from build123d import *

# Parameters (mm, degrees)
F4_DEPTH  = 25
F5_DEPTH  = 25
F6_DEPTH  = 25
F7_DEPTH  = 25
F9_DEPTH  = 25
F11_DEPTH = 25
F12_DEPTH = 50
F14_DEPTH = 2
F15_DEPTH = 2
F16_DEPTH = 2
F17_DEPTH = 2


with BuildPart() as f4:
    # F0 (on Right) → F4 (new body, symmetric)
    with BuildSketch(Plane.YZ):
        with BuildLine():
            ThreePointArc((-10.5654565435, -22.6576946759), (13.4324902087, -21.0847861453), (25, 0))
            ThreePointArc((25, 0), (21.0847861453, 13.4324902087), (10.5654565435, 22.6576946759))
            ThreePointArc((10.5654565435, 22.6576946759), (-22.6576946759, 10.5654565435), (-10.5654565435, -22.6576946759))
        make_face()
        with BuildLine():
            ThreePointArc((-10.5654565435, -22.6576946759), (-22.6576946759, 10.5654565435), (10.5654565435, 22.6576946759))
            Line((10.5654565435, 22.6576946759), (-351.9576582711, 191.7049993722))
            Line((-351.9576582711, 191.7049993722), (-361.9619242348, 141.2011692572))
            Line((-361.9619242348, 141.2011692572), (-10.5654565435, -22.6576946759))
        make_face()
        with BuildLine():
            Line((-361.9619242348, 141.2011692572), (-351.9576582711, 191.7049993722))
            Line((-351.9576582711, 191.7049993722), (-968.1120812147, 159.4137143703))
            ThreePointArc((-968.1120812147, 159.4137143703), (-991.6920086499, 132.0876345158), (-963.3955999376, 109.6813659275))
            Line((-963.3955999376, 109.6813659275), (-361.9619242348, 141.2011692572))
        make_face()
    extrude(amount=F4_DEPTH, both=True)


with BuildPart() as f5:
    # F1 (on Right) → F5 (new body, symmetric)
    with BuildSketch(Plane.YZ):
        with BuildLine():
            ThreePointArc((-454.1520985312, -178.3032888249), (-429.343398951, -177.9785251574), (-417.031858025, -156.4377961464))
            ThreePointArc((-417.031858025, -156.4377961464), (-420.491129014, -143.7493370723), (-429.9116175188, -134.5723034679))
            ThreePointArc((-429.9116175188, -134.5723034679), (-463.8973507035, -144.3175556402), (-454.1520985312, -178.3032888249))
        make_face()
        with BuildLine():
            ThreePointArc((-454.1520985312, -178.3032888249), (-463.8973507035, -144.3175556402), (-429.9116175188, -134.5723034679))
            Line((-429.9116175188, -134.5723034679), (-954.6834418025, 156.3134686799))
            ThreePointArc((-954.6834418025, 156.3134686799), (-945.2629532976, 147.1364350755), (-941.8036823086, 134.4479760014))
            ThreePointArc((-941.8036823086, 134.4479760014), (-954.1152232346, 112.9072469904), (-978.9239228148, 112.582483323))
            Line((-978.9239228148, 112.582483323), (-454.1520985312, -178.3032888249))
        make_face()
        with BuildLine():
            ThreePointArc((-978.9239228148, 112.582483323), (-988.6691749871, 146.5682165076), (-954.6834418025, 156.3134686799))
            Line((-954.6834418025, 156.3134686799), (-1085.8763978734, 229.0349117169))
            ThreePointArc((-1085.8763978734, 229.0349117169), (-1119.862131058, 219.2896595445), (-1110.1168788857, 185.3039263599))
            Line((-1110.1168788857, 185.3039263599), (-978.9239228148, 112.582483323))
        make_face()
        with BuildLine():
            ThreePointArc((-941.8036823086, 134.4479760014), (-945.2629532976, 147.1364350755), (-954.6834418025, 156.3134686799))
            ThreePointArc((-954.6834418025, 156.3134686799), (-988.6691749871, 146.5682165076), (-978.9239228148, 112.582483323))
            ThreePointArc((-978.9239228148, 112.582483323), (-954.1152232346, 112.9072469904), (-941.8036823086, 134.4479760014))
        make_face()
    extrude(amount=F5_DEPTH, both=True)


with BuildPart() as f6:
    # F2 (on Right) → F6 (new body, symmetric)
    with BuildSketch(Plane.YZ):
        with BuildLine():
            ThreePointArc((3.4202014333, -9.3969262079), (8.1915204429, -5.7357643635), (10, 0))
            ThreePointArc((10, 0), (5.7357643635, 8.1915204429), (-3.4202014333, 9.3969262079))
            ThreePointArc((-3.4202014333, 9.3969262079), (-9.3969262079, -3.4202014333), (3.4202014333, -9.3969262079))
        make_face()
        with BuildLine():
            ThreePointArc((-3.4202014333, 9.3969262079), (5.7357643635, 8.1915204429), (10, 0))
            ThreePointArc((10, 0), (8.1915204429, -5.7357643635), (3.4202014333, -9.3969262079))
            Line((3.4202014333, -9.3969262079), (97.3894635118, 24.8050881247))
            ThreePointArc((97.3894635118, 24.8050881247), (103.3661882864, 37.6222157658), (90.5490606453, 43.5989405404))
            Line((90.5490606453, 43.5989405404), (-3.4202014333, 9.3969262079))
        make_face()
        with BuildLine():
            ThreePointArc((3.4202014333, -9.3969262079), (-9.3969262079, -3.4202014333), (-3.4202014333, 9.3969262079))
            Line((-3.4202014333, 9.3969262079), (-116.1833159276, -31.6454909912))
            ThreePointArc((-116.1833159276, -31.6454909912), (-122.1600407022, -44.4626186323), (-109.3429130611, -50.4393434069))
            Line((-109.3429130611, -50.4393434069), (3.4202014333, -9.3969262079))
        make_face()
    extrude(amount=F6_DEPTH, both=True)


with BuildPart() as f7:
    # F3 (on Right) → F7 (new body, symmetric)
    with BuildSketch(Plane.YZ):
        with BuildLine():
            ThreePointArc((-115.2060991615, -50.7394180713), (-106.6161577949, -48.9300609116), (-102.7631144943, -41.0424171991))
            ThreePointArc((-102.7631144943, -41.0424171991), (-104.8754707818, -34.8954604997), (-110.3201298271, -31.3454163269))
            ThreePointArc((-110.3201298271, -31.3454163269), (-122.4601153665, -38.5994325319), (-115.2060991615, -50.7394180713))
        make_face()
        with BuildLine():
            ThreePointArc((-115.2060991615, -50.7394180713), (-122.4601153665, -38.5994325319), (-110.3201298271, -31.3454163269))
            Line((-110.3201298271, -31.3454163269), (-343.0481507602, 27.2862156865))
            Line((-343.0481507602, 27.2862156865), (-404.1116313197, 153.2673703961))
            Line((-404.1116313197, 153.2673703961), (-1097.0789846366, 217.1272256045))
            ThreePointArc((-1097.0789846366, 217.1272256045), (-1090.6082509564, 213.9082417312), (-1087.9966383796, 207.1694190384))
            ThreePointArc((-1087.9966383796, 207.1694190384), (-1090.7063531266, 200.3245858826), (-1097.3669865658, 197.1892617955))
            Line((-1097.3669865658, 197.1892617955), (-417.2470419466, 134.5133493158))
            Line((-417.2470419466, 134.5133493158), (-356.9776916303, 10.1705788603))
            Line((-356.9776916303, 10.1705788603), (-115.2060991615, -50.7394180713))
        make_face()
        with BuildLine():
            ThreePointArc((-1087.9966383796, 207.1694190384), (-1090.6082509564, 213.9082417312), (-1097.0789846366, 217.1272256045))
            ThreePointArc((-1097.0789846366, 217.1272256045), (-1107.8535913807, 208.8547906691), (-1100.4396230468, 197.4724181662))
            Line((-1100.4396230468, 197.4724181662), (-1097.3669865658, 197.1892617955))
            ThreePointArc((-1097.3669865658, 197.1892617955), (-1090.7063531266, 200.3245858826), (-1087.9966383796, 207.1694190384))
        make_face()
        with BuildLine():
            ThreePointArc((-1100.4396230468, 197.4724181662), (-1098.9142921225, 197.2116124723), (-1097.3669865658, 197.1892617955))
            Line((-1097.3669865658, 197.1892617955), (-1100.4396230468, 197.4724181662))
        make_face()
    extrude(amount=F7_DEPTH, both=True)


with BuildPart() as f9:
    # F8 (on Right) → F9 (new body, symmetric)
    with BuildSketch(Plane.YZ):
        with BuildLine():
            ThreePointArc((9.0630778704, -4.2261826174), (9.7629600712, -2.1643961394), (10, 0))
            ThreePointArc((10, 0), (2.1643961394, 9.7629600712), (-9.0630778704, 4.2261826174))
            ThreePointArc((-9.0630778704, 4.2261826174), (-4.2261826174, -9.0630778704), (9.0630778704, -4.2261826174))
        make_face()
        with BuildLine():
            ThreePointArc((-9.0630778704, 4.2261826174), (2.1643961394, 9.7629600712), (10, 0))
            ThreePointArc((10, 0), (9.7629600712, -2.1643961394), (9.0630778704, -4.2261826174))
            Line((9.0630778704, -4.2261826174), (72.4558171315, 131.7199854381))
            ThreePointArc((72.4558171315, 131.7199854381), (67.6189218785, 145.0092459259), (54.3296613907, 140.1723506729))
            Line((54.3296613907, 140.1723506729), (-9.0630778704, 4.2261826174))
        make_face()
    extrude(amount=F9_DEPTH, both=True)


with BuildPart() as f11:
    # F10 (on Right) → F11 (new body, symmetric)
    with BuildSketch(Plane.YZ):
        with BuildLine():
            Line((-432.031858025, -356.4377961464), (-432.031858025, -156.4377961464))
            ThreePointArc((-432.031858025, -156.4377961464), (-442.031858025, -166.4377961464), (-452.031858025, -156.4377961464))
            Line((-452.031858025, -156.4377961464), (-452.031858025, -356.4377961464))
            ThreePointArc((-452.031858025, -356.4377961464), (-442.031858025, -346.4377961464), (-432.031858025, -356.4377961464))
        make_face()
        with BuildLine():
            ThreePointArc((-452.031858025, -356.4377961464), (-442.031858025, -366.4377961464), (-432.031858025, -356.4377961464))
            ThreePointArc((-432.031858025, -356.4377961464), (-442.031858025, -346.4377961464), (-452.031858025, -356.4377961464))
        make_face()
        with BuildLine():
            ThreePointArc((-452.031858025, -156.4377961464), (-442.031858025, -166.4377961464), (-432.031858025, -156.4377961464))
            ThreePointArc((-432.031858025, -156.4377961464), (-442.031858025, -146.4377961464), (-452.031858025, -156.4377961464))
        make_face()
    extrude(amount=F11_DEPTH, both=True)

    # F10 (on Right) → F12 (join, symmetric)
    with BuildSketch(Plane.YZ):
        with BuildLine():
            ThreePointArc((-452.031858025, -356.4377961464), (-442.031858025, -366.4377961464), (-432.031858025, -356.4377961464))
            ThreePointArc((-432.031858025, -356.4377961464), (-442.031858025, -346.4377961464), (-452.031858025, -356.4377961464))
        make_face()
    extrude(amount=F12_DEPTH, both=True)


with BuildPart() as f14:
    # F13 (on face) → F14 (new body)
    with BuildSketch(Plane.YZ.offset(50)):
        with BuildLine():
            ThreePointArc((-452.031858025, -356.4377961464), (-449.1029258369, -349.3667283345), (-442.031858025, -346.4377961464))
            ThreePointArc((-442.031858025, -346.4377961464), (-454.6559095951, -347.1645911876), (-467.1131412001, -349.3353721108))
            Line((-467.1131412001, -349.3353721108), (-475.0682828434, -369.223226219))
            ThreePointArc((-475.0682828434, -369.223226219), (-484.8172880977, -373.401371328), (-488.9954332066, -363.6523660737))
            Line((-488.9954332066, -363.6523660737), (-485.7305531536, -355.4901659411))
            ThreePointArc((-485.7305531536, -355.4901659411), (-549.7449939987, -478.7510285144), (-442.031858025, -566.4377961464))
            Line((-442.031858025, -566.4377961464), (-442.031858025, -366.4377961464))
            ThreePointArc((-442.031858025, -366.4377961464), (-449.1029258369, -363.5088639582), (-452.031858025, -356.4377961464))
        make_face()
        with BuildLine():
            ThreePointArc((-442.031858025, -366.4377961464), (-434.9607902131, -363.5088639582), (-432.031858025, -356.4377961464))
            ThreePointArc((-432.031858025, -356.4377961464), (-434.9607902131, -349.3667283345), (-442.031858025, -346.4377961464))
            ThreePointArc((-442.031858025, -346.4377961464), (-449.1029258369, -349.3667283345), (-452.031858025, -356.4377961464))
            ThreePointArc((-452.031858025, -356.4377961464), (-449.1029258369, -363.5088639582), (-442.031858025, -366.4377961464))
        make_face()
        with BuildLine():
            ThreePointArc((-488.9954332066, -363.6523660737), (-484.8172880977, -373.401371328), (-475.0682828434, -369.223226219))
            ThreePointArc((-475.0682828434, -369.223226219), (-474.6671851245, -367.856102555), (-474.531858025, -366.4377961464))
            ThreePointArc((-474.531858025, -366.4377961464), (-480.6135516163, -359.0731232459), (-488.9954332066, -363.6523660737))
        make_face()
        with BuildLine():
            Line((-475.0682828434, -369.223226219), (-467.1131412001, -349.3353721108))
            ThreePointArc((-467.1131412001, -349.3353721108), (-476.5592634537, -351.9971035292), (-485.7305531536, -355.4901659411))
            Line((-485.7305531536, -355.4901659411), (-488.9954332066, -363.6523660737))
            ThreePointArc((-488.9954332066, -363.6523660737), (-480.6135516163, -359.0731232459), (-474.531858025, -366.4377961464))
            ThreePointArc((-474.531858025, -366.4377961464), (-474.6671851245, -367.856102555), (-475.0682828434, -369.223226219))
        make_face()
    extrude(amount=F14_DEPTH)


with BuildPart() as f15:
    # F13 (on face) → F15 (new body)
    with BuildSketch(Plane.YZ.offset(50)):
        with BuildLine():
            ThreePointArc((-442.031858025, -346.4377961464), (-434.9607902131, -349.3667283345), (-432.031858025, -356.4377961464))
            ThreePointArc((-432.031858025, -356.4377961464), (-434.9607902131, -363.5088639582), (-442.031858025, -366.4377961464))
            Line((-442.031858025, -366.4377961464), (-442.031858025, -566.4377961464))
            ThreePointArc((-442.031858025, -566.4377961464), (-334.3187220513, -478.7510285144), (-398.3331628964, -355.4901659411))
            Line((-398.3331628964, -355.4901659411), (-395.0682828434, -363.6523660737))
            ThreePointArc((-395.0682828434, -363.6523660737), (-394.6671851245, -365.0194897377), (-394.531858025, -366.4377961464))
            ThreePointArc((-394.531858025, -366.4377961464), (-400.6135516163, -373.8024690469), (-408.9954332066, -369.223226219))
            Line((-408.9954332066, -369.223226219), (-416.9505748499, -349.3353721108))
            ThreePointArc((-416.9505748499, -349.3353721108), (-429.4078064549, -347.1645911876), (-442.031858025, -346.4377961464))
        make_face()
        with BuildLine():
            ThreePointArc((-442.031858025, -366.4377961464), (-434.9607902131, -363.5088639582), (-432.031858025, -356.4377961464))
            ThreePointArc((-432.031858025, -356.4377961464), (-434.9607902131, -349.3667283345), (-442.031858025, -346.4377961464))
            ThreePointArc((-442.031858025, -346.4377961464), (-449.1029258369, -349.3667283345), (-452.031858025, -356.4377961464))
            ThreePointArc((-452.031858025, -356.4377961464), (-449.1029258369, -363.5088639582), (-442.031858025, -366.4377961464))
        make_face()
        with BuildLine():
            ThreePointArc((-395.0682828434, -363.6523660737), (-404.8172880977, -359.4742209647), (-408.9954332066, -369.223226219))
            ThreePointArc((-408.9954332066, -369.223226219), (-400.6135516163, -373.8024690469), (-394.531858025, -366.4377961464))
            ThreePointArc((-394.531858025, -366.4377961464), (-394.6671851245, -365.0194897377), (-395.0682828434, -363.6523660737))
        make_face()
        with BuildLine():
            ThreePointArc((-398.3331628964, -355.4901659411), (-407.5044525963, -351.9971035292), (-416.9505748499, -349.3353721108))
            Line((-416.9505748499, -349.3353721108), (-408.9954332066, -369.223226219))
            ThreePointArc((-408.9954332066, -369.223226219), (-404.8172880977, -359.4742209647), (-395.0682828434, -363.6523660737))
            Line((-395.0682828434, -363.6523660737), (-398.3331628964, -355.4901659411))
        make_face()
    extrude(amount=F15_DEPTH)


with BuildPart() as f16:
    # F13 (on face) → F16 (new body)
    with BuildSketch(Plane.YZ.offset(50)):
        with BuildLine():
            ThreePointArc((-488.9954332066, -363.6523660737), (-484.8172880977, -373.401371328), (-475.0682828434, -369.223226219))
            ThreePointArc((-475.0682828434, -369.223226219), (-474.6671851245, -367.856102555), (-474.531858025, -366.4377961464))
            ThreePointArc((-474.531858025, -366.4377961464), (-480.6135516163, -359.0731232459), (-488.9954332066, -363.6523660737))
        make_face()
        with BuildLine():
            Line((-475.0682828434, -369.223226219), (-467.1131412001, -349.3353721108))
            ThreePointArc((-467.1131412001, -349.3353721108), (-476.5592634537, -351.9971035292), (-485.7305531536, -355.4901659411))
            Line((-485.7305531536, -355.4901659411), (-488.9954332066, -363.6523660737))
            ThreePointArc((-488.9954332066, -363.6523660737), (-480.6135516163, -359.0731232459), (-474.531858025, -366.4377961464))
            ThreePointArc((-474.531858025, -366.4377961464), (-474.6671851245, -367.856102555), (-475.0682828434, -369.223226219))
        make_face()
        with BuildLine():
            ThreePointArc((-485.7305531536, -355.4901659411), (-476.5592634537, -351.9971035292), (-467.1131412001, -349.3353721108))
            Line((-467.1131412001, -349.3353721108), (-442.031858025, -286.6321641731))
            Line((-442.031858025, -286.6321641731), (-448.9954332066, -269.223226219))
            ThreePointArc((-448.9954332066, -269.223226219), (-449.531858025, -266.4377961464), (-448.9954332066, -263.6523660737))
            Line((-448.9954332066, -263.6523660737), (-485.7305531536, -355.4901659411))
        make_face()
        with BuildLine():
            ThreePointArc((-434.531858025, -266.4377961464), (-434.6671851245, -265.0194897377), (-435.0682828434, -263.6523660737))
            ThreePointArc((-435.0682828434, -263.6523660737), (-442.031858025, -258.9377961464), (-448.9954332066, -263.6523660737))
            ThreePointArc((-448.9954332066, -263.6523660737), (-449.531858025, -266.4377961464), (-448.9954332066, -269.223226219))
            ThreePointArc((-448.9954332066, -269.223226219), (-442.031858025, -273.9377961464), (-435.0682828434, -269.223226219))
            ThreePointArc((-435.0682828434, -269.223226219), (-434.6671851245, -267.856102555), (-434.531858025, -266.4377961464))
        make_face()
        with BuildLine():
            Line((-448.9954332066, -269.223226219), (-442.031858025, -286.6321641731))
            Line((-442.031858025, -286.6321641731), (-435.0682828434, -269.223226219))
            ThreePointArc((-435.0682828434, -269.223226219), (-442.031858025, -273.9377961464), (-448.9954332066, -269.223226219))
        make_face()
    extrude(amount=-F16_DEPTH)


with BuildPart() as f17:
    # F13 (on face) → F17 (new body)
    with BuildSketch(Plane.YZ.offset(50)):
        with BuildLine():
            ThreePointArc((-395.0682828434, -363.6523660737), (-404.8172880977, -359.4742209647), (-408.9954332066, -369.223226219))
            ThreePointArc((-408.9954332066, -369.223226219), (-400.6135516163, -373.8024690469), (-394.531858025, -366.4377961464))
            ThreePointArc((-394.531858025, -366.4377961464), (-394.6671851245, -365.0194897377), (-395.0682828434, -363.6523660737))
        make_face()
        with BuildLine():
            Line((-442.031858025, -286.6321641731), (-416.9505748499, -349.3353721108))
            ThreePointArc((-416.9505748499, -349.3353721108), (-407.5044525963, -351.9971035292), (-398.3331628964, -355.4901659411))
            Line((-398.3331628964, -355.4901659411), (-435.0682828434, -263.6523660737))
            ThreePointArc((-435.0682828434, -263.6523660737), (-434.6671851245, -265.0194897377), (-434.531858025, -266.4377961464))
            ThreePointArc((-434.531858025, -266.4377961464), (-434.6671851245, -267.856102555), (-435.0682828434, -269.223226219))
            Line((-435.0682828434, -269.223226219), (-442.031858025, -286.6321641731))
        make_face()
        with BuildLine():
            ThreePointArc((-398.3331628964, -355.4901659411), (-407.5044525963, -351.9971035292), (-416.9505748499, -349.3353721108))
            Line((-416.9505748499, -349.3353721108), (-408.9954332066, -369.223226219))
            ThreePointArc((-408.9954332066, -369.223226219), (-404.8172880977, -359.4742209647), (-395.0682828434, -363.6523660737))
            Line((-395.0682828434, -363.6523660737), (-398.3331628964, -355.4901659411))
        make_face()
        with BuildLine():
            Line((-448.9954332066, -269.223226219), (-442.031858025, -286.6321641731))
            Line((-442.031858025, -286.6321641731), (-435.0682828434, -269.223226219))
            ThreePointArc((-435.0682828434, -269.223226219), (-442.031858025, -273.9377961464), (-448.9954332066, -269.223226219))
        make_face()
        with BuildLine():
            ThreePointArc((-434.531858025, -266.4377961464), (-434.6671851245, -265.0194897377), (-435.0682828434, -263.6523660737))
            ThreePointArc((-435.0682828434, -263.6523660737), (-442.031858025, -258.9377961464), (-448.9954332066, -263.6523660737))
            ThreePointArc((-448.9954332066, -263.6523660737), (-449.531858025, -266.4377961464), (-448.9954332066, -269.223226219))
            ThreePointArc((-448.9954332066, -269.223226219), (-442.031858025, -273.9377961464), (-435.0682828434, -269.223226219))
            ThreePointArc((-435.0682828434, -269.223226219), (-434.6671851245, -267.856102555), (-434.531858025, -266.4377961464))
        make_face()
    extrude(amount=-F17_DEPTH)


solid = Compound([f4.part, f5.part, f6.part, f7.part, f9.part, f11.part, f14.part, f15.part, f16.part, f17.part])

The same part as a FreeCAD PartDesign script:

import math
import FreeCAD as App
import Part
import Sketcher
from FreeCAD import Vector
Q = App.Units.Quantity

doc = App.newDocument("Part")
body = doc.addObject("PartDesign::Body", "Body")

sketch1 = body.newObject("Sketcher::SketchObject", "Sketch")
sketch1.AttachmentSupport = (doc.getObject("YZ_Plane"), [""])
sketch1.MapMode = "FlatFace"
sketch1.addGeometry(Part.ArcOfCircle(Part.Circle(Vector(0, 0, 0), Vector(0, 0, 1), 25), math.radians(-115), math.radians(65)), False)
sketch1.addGeometry(Part.LineSegment(Vector(11, 23, 0), Vector(-352, 192, 0)), False)
sketch1.addGeometry(Part.LineSegment(Vector(-352, 192, 0), Vector(-968, 159, 0)), False)
sketch1.addGeometry(Part.ArcOfCircle(Part.Circle(Vector(-967, 134, 0), Vector(0, 0, 1), 25), math.radians(93), math.radians(278)), False)
sketch1.addGeometry(Part.LineSegment(Vector(-963, 110, 0), Vector(-362, 141, 0)), False)
sketch1.addGeometry(Part.LineSegment(Vector(-362, 141, 0), Vector(-11, -23, 0)), False)
sketch1.addConstraint(Sketcher.Constraint("Tangent", 0, 2, 1, 1))
sketch1.addConstraint(Sketcher.Constraint("Coincident", 1, 2, 2, 1))
sketch1.addConstraint(Sketcher.Constraint("Tangent", 2, 2, 3, 1))
sketch1.addConstraint(Sketcher.Constraint("Coincident", 3, 2, 4, 1))
sketch1.addConstraint(Sketcher.Constraint("Coincident", 4, 2, 5, 1))
sketch1.addConstraint(Sketcher.Constraint("Tangent", 5, 2, 0, 1))
sketch1.addConstraint(Sketcher.Constraint("Coincident", 0, 3, -1, 1))
sketch1.addConstraint(Sketcher.Constraint("Equal", 0, 3))
sketch1.addConstraint(Sketcher.Constraint("Parallel", 2, 4))
sketch1.addConstraint(Sketcher.Constraint("Parallel", 1, 5))
sketch1.addConstraint(Sketcher.Constraint("Radius", 0, 25.0))
sketch1.addConstraint(Sketcher.Constraint("Angle", 1, Q("155 deg")))
sketch1.addConstraint(Sketcher.Constraint("Angle", 2, Q("-177 deg")))
sketch1.addConstraint(Sketcher.Constraint("Distance", 1, 400.0))
sketch1.addConstraint(Sketcher.Constraint("Distance", 2, 617.0))
sketch1.addConstraint(Sketcher.Constraint("DistanceX", 3, 2, -1, 1, 963.3956))
pad1 = body.newObject("PartDesign::Pad", "Pad")
pad1.Profile = sketch1
pad1.Length = 50
pad1.Midplane = True
body2 = doc.addObject("PartDesign::Body", "Body001")

sketch2 = body2.newObject("Sketcher::SketchObject", "Sketch001")
sketch2.AttachmentSupport = (doc.getObject("YZ_Plane001"), [""])
sketch2.MapMode = "FlatFace"
sketch2.addGeometry(Part.ArcOfCircle(Part.Circle(Vector(-442, -156, 0), Vector(0, 0, 1), 25), math.radians(-119), math.radians(0)), False)
sketch2.addGeometry(Part.ArcOfCircle(Part.Circle(Vector(-442, -156, 0), Vector(0, 0, 1), 25), math.radians(0), math.radians(61)), False)
sketch2.addGeometry(Part.LineSegment(Vector(-430, -135, 0), Vector(-1086, 229, 0)), False)
sketch2.addGeometry(Part.ArcOfCircle(Part.Circle(Vector(-1098, 207, 0), Vector(0, 0, 1), 25), math.radians(61), math.radians(241)), False)
sketch2.addGeometry(Part.LineSegment(Vector(-1110, 185, 0), Vector(-454, -178, 0)), False)
sketch2.addConstraint(Sketcher.Constraint("Tangent", 0, 2, 1, 1))
sketch2.addConstraint(Sketcher.Constraint("Tangent", 1, 2, 2, 1))
sketch2.addConstraint(Sketcher.Constraint("Tangent", 2, 2, 3, 1))
sketch2.addConstraint(Sketcher.Constraint("Tangent", 3, 2, 4, 1))
sketch2.addConstraint(Sketcher.Constraint("Tangent", 4, 2, 0, 1))
sketch2.addConstraint(Sketcher.Constraint("Equal", 0, 1))
sketch2.addConstraint(Sketcher.Constraint("Equal", 1, 3))
sketch2.addConstraint(Sketcher.Constraint("Horizontal", 1, 3, 0, 2))
sketch2.addConstraint(Sketcher.Constraint("Radius", 0, 25.0))
sketch2.addConstraint(Sketcher.Constraint("Angle", 2, Q("151 deg")))
sketch2.addConstraint(Sketcher.Constraint("Distance", 2, 750.0))
sketch2.addConstraint(Sketcher.Constraint("DistanceX", 4, 2, -1, 1, 454.152099))
sketch2.addConstraint(Sketcher.Constraint("DistanceY", -1, 1, 3, 3, 207.169419))
pad2 = body2.newObject("PartDesign::Pad", "Pad001")
pad2.Profile = sketch2
pad2.Length = 50
pad2.Midplane = True
body3 = doc.addObject("PartDesign::Body", "Body002")

sketch3 = body3.newObject("Sketcher::SketchObject", "Sketch002")
sketch3.AttachmentSupport = (doc.getObject("YZ_Plane002"), [""])
sketch3.MapMode = "FlatFace"
sketch3.addGeometry(Part.LineSegment(Vector(3, -9, 0), Vector(97, 25, 0)), False)
sketch3.addGeometry(Part.ArcOfCircle(Part.Circle(Vector(94, 34, 0), Vector(0, 0, 1), 10), math.radians(-70), math.radians(110)), False)
sketch3.addGeometry(Part.LineSegment(Vector(91, 44, 0), Vector(-116, -32, 0)), False)
sketch3.addGeometry(Part.ArcOfCircle(Part.Circle(Vector(-113, -41, 0), Vector(0, 0, 1), 10), math.radians(110), math.radians(290)), False)
sketch3.addGeometry(Part.LineSegment(Vector(-109, -50, 0), Vector(3, -9, 0)), False)
sketch3.addConstraint(Sketcher.Constraint("Tangent", 0, 2, 1, 1))
sketch3.addConstraint(Sketcher.Constraint("Tangent", 1, 2, 2, 1))
sketch3.addConstraint(Sketcher.Constraint("Tangent", 2, 2, 3, 1))
sketch3.addConstraint(Sketcher.Constraint("Tangent", 3, 2, 4, 1))
sketch3.addConstraint(Sketcher.Constraint("Coincident", 4, 2, 0, 1))
sketch3.addConstraint(Sketcher.Constraint("Equal", 1, 3))
sketch3.addConstraint(Sketcher.Constraint("Parallel", 0, 2))
sketch3.addConstraint(Sketcher.Constraint("Radius", 1, 10.0))
sketch3.addConstraint(Sketcher.Constraint("Angle", 0, Q("20 deg")))
sketch3.addConstraint(Sketcher.Constraint("Distance", 0, 100.0))
sketch3.addConstraint(Sketcher.Constraint("Distance", 2, 220.0))
sketch3.addConstraint(Sketcher.Constraint("DistanceX", -1, 1, 4, 2, 3.420201))
sketch3.addConstraint(Sketcher.Constraint("DistanceY", -1, 1, 0, 2, 24.805088))
pad3 = body3.newObject("PartDesign::Pad", "Pad002")
pad3.Profile = sketch3
pad3.Length = 50
pad3.Midplane = True
body4 = doc.addObject("PartDesign::Body", "Body003")

sketch4 = body4.newObject("Sketcher::SketchObject", "Sketch003")
sketch4.AttachmentSupport = (doc.getObject("YZ_Plane003"), [""])
sketch4.MapMode = "FlatFace"
sketch4.addGeometry(Part.ArcOfCircle(Part.Circle(Vector(-112.8, -41, 0), Vector(0, 0, 1), 10), math.radians(-104), math.radians(0)), False)
sketch4.addGeometry(Part.ArcOfCircle(Part.Circle(Vector(-112.8, -41, 0), Vector(0, 0, 1), 10), math.radians(0), math.radians(76)), False)
sketch4.addGeometry(Part.LineSegment(Vector(-110.3, -31.3, 0), Vector(-343, 27.3, 0)), False)
sketch4.addGeometry(Part.LineSegment(Vector(-343, 27.3, 0), Vector(-404.1, 153.3, 0)), False)
sketch4.addGeometry(Part.LineSegment(Vector(-404.1, 153.3, 0), Vector(-1097.1, 217.1, 0)), False)
sketch4.addGeometry(Part.ArcOfCircle(Part.Circle(Vector(-1098, 207.2, 0), Vector(0, 0, 1), 10), math.radians(85), math.radians(256)), False)
sketch4.addGeometry(Part.ArcOfCircle(Part.Circle(Vector(-1098, 207.2, 0), Vector(0, 0, 1), 10), math.radians(-104.14), math.radians(-86.39)), False)
sketch4.addGeometry(Part.LineSegment(Vector(-1097.4, 197.2, 0), Vector(-417.2, 134.5, 0)), False)
sketch4.addGeometry(Part.LineSegment(Vector(-417.2, 134.5, 0), Vector(-357, 10.2, 0)), False)
sketch4.addGeometry(Part.LineSegment(Vector(-357, 10.2, 0), Vector(-115.2, -50.7, 0)), False)
sketch4.addConstraint(Sketcher.Constraint("Tangent", 0, 2, 1, 1))
sketch4.addConstraint(Sketcher.Constraint("Tangent", 1, 2, 2, 1))
sketch4.addConstraint(Sketcher.Constraint("Coincident", 2, 2, 3, 1))
sketch4.addConstraint(Sketcher.Constraint("Coincident", 3, 2, 4, 1))
sketch4.addConstraint(Sketcher.Constraint("Tangent", 4, 2, 5, 1))
sketch4.addConstraint(Sketcher.Constraint("Tangent", 5, 2, 6, 1))
sketch4.addConstraint(Sketcher.Constraint("Coincident", 6, 2, 7, 1))
sketch4.addConstraint(Sketcher.Constraint("Coincident", 7, 2, 8, 1))
sketch4.addConstraint(Sketcher.Constraint("Coincident", 8, 2, 9, 1))
sketch4.addConstraint(Sketcher.Constraint("Tangent", 9, 2, 0, 1))
sketch4.addConstraint(Sketcher.Constraint("Equal", 0, 1))
sketch4.addConstraint(Sketcher.Constraint("Equal", 1, 5))
sketch4.addConstraint(Sketcher.Constraint("Equal", 5, 6))
sketch4.addConstraint(Sketcher.Constraint("Parallel", 4, 7))
sketch4.addConstraint(Sketcher.Constraint("Parallel", 3, 8))
sketch4.addConstraint(Sketcher.Constraint("Parallel", 2, 9))
sketch4.addConstraint(Sketcher.Constraint("Horizontal", 1, 3, 0, 2))
sketch4.addConstraint(Sketcher.Constraint("Radius", 0, 10.0))
sketch4.addConstraint(Sketcher.Constraint("Distance", 2, 240.0))
sketch4.addConstraint(Sketcher.Constraint("Distance", 3, 140.0))
sketch4.addConstraint(Sketcher.Constraint("DistanceY", 0, 3, 1, 2, 9.697001))
sketch4.addConstraint(Sketcher.Constraint("DistanceY", 5, 2, 5, 3, 9.697001))
sketch4.addConstraint(Sketcher.Constraint("DistanceX", 6, 2, 4, 2, 0.288002))
sketch4.addConstraint(Sketcher.Constraint("Distance", 8, 138.179301))
sketch4.addConstraint(Sketcher.Constraint("DistanceX", 9, 2, -1, 1, 115.206099))
sketch4.addConstraint(Sketcher.Constraint("DistanceX", 3, 2, 1, 2, 293.791501))
sketch4.addConstraint(Sketcher.Constraint("Distance", 4, 695.90361))
sketch4.addConstraint(Sketcher.Constraint("DistanceX", 5, 3, -1, 1, 1097.996638))
sketch4.addConstraint(Sketcher.Constraint("DistanceY", -1, 1, 5, 3, 207.169419))
pad4 = body4.newObject("PartDesign::Pad", "Pad003")
pad4.Profile = sketch4
pad4.Length = 50
pad4.Midplane = True
body5 = doc.addObject("PartDesign::Body", "Body004")

sketch5 = body5.newObject("Sketcher::SketchObject", "Sketch004")
sketch5.AttachmentSupport = (doc.getObject("YZ_Plane004"), [""])
sketch5.MapMode = "FlatFace"
sketch5.addGeometry(Part.ArcOfCircle(Part.Circle(Vector(0, 0, 0), Vector(0, 0, 1), 10), math.radians(155), math.radians(335)), False)
sketch5.addGeometry(Part.LineSegment(Vector(9, -4, 0), Vector(72, 132, 0)), False)
sketch5.addGeometry(Part.ArcOfCircle(Part.Circle(Vector(63, 136, 0), Vector(0, 0, 1), 10), math.radians(-25), math.radians(155)), False)
sketch5.addGeometry(Part.LineSegment(Vector(54, 140, 0), Vector(-9, 4, 0)), False)
sketch5.addConstraint(Sketcher.Constraint("Tangent", 0, 2, 1, 1))
sketch5.addConstraint(Sketcher.Constraint("Tangent", 1, 2, 2, 1))
sketch5.addConstraint(Sketcher.Constraint("Tangent", 2, 2, 3, 1))
sketch5.addConstraint(Sketcher.Constraint("Tangent", 3, 2, 0, 1))
sketch5.addConstraint(Sketcher.Constraint("Coincident", 0, 3, -1, 1))
sketch5.addConstraint(Sketcher.Constraint("Equal", 0, 2))
sketch5.addConstraint(Sketcher.Constraint("Radius", 0, 10.0))
sketch5.addConstraint(Sketcher.Constraint("Angle", 1, Q("65 deg")))
sketch5.addConstraint(Sketcher.Constraint("Distance", 1, 150.0))
pad5 = body5.newObject("PartDesign::Pad", "Pad004")
pad5.Profile = sketch5
pad5.Length = 50
pad5.Midplane = True
body6 = doc.addObject("PartDesign::Body", "Body005")

sketch6 = body6.newObject("Sketcher::SketchObject", "Sketch005")
sketch6.AttachmentSupport = (doc.getObject("YZ_Plane005"), [""])
sketch6.MapMode = "FlatFace"
sketch6.addGeometry(Part.LineSegment(Vector(-432, -356, 0), Vector(-432, -156, 0)), False)
sketch6.addGeometry(Part.ArcOfCircle(Part.Circle(Vector(-442, -156, 0), Vector(0, 0, 1), 10), math.radians(0), math.radians(180)), False)
sketch6.addGeometry(Part.LineSegment(Vector(-452, -156, 0), Vector(-452, -356, 0)), False)
sketch6.addGeometry(Part.ArcOfCircle(Part.Circle(Vector(-442, -356, 0), Vector(0, 0, 1), 10), math.radians(180), math.radians(360)), False)
sketch6.addConstraint(Sketcher.Constraint("Tangent", 0, 2, 1, 1))
sketch6.addConstraint(Sketcher.Constraint("Tangent", 1, 2, 2, 1))
sketch6.addConstraint(Sketcher.Constraint("Tangent", 2, 2, 3, 1))
sketch6.addConstraint(Sketcher.Constraint("Tangent", 3, 2, 0, 1))
sketch6.addConstraint(Sketcher.Constraint("Vertical", 0))
sketch6.addConstraint(Sketcher.Constraint("Vertical", 2))
sketch6.addConstraint(Sketcher.Constraint("Radius", 1, 10.0))
sketch6.addConstraint(Sketcher.Constraint("DistanceY", 0, 1, 0, 2, 200.0))
sketch6.addConstraint(Sketcher.Constraint("DistanceX", 1, 3, -1, 1, 442.031858))
sketch6.addConstraint(Sketcher.Constraint("DistanceY", 1, 3, -1, 1, 156.437796))
pad6 = body6.newObject("PartDesign::Pad", "Pad005")
pad6.Profile = sketch6
pad6.Length = 50
pad6.Midplane = True

sketch7 = body6.newObject("Sketcher::SketchObject", "Sketch006")
sketch7.AttachmentSupport = (doc.getObject("YZ_Plane005"), [""])
sketch7.MapMode = "FlatFace"
sketch7.addGeometry(Part.Circle(Vector(-442, -356, 0), Vector(0, 0, 1), 10), False)
sketch7.addConstraint(Sketcher.Constraint("Diameter", 0, 20.0))
sketch7.addConstraint(Sketcher.Constraint("DistanceX", 0, 3, -1, 1, 442.031858))
sketch7.addConstraint(Sketcher.Constraint("DistanceY", 0, 3, -1, 1, 356.437796))
pad7 = body6.newObject("PartDesign::Pad", "Pad006")
pad7.Profile = sketch7
pad7.Length = 100
pad7.Midplane = True
body7 = doc.addObject("PartDesign::Body", "Body006")

sketch8 = body7.newObject("Sketcher::SketchObject", "Sketch007")
sketch8.AttachmentSupport = (doc.getObject("YZ_Plane006"), [""])
sketch8.MapMode = "FlatFace"
sketch8.AttachmentOffset = App.Placement(Vector(0, 0, 50), App.Rotation())
sketch8.addGeometry(Part.ArcOfCircle(Part.Circle(Vector(-442, -456, 0), Vector(0, 0, 1), 110), math.radians(90), math.radians(103.18)), False)
sketch8.addGeometry(Part.ArcOfCircle(Part.Circle(Vector(-442, -456, 0), Vector(0, 0, 1), 110), math.radians(103.18), math.radians(113.41)), False)
sketch8.addGeometry(Part.ArcOfCircle(Part.Circle(Vector(-442, -456, 0), Vector(0, 0, 1), 110), math.radians(113), math.radians(270)), False)
sketch8.addGeometry(Part.LineSegment(Vector(-442, -566, 0), Vector(-442, -366, 0)), False)
sketch8.addGeometry(Part.ArcOfCircle(Part.Circle(Vector(-442, -356, 0), Vector(0, 0, 1), 10), math.radians(-90), math.radians(0)), False)
sketch8.addGeometry(Part.ArcOfCircle(Part.Circle(Vector(-442, -356, 0), Vector(0, 0, 1), 10), math.radians(0), math.radians(90)), False)
sketch8.addConstraint(Sketcher.Constraint("Tangent", 0, 2, 1, 1))
sketch8.addConstraint(Sketcher.Constraint("Tangent", 1, 2, 2, 1))
sketch8.addConstraint(Sketcher.Constraint("Coincident", 2, 2, 3, 1))
sketch8.addConstraint(Sketcher.Constraint("Coincident", 3, 2, 4, 1))
sketch8.addConstraint(Sketcher.Constraint("Tangent", 4, 2, 5, 1))
sketch8.addConstraint(Sketcher.Constraint("Tangent", 5, 2, 0, 1))
sketch8.addConstraint(Sketcher.Constraint("Vertical", 3))
sketch8.addConstraint(Sketcher.Constraint("Coincident", 2, 3, 0, 3))
sketch8.addConstraint(Sketcher.Constraint("Equal", 4, 5))
sketch8.addConstraint(Sketcher.Constraint("Horizontal", 5, 3, 4, 2))
sketch8.addConstraint(Sketcher.Constraint("Vertical", 2, 3, 4, 3))
sketch8.addConstraint(Sketcher.Constraint("Vertical", 5, 3, 2, 2))
sketch8.addConstraint(Sketcher.Constraint("Radius", 0, 110.0))
sketch8.addConstraint(Sketcher.Constraint("Radius", 4, 10.0))
sketch8.addConstraint(Sketcher.Constraint("DistanceX", 0, 3, -1, 1, 442.031858))
sketch8.addConstraint(Sketcher.Constraint("DistanceX", 0, 2, -1, 1, 467.113141))
sketch8.addConstraint(Sketcher.Constraint("DistanceX", 1, 2, 0, 2, 18.617412))
sketch8.addConstraint(Sketcher.Constraint("DistanceY", 0, 3, -1, 1, 456.437796))
pad8 = body7.newObject("PartDesign::Pad", "Pad007")
pad8.Profile = sketch8
pad8.Length = 2
body8 = doc.addObject("PartDesign::Body", "Body007")

sketch9 = body8.newObject("Sketcher::SketchObject", "Sketch008")
sketch9.AttachmentSupport = (doc.getObject("YZ_Plane007"), [""])
sketch9.MapMode = "FlatFace"
sketch9.AttachmentOffset = App.Placement(Vector(0, 0, 50), App.Rotation())
sketch9.addGeometry(Part.LineSegment(Vector(-442, -366, 0), Vector(-442, -566, 0)), False)
sketch9.addGeometry(Part.ArcOfCircle(Part.Circle(Vector(-442, -456, 0), Vector(0, 0, 1), 110), math.radians(-90), math.radians(67)), False)
sketch9.addGeometry(Part.ArcOfCircle(Part.Circle(Vector(-442, -456, 0), Vector(0, 0, 1), 110), math.radians(66.59), math.radians(76.82)), False)
sketch9.addGeometry(Part.ArcOfCircle(Part.Circle(Vector(-442, -456, 0), Vector(0, 0, 1), 110), math.radians(76.82), math.radians(90)), False)
sketch9.addGeometry(Part.ArcOfCircle(Part.Circle(Vector(-442, -356, 0), Vector(0, 0, 1), 10), math.radians(90), math.radians(180)), False)
sketch9.addGeometry(Part.ArcOfCircle(Part.Circle(Vector(-442, -356, 0), Vector(0, 0, 1), 10), math.radians(180), math.radians(270)), False)
sketch9.addConstraint(Sketcher.Constraint("Coincident", 0, 2, 1, 1))
sketch9.addConstraint(Sketcher.Constraint("Tangent", 1, 2, 2, 1))
sketch9.addConstraint(Sketcher.Constraint("Tangent", 2, 2, 3, 1))
sketch9.addConstraint(Sketcher.Constraint("Tangent", 3, 2, 4, 1))
sketch9.addConstraint(Sketcher.Constraint("Tangent", 4, 2, 5, 1))
sketch9.addConstraint(Sketcher.Constraint("Coincident", 5, 2, 0, 1))
sketch9.addConstraint(Sketcher.Constraint("Vertical", 0))
sketch9.addConstraint(Sketcher.Constraint("Coincident", 3, 3, 1, 3))
sketch9.addConstraint(Sketcher.Constraint("Equal", 4, 5))
sketch9.addConstraint(Sketcher.Constraint("Horizontal", 5, 3, 4, 2))
sketch9.addConstraint(Sketcher.Constraint("Vertical", 3, 3, 4, 3))
sketch9.addConstraint(Sketcher.Constraint("Vertical", 5, 3, 0, 2))
sketch9.addConstraint(Sketcher.Constraint("Radius", 1, 110.0))
sketch9.addConstraint(Sketcher.Constraint("Radius", 4, 10.0))
sketch9.addConstraint(Sketcher.Constraint("DistanceX", 1, 3, -1, 1, 442.031858))
sketch9.addConstraint(Sketcher.Constraint("DistanceY", 4, 3, 1, 2, 0.94763))
sketch9.addConstraint(Sketcher.Constraint("DistanceX", 2, 2, 1, 2, 18.617412))
sketch9.addConstraint(Sketcher.Constraint("DistanceY", 1, 3, -1, 1, 456.437796))
pad9 = body8.newObject("PartDesign::Pad", "Pad008")
pad9.Profile = sketch9
pad9.Length = 2
body9 = doc.addObject("PartDesign::Body", "Body008")

sketch10 = body9.newObject("Sketcher::SketchObject", "Sketch009")
sketch10.AttachmentSupport = (doc.getObject("YZ_Plane008"), [""])
sketch10.MapMode = "FlatFace"
sketch10.AttachmentOffset = App.Placement(Vector(0, 0, 50), App.Rotation())
sketch10.addGeometry(Part.ArcOfCircle(Part.Circle(Vector(-482, -366.4, 0), Vector(0, 0, 1), 7.5), math.radians(158), math.radians(338)), False)
sketch10.addGeometry(Part.LineSegment(Vector(-475.1, -369.2, 0), Vector(-442, -286.6, 0)), False)
sketch10.addGeometry(Part.LineSegment(Vector(-442, -286.6, 0), Vector(-435.1, -269.2, 0)), False)
sketch10.addGeometry(Part.ArcOfCircle(Part.Circle(Vector(-442, -266.4, 0), Vector(0, 0, 1), 7.5), math.radians(-22), math.radians(0)), False)
sketch10.addGeometry(Part.ArcOfCircle(Part.Circle(Vector(-442, -266.4, 0), Vector(0, 0, 1), 7.5), math.radians(0), math.radians(22)), False)
sketch10.addGeometry(Part.ArcOfCircle(Part.Circle(Vector(-442, -266.4, 0), Vector(0, 0, 1), 7.5), math.radians(22), math.radians(158)), False)
sketch10.addGeometry(Part.LineSegment(Vector(-449, -263.7, 0), Vector(-485.7, -355.5, 0)), False)
sketch10.addGeometry(Part.LineSegment(Vector(-485.7, -355.5, 0), Vector(-489, -363.7, 0)), False)
sketch10.addConstraint(Sketcher.Constraint("Tangent", 0, 2, 1, 1))
sketch10.addConstraint(Sketcher.Constraint("Coincident", 1, 2, 2, 1))
sketch10.addConstraint(Sketcher.Constraint("Tangent", 2, 2, 3, 1))
sketch10.addConstraint(Sketcher.Constraint("Tangent", 3, 2, 4, 1))
sketch10.addConstraint(Sketcher.Constraint("Tangent", 4, 2, 5, 1))
sketch10.addConstraint(Sketcher.Constraint("Tangent", 5, 2, 6, 1))
sketch10.addConstraint(Sketcher.Constraint("Coincident", 6, 2, 7, 1))
sketch10.addConstraint(Sketcher.Constraint("Tangent", 7, 2, 0, 1))
sketch10.addConstraint(Sketcher.Constraint("Coincident", 5, 3, 3, 3))
sketch10.addConstraint(Sketcher.Constraint("Equal", 0, 3))
sketch10.addConstraint(Sketcher.Constraint("Parallel", 1, 2))
sketch10.addConstraint(Sketcher.Constraint("Parallel", 2, 6))
sketch10.addConstraint(Sketcher.Constraint("Horizontal", 5, 3, 3, 2))
sketch10.addConstraint(Sketcher.Constraint("Horizontal", 4, 2, 5, 2))
sketch10.addConstraint(Sketcher.Constraint("Vertical", 5, 3, 1, 2))
sketch10.addConstraint(Sketcher.Constraint("Radius", 0, 7.5))
sketch10.addConstraint(Sketcher.Constraint("DistanceX", 0, 3, 3, 3, 40.0))
sketch10.addConstraint(Sketcher.Constraint("DistanceY", 0, 3, 3, 3, 100.0))
sketch10.addConstraint(Sketcher.Constraint("DistanceY", 6, 2, 1, 2, 68.858002))
sketch10.addConstraint(Sketcher.Constraint("DistanceX", 0, 3, -1, 1, 482.031858))
sketch10.addConstraint(Sketcher.Constraint("DistanceY", 0, 3, -1, 1, 366.437796))
pad10 = body9.newObject("PartDesign::Pad", "Pad009")
pad10.Profile = sketch10
pad10.Length = 2
pad10.Reversed = True
body10 = doc.addObject("PartDesign::Body", "Body009")

sketch11 = body10.newObject("Sketcher::SketchObject", "Sketch010")
sketch11.AttachmentSupport = (doc.getObject("YZ_Plane009"), [""])
sketch11.MapMode = "FlatFace"
sketch11.AttachmentOffset = App.Placement(Vector(0, 0, 50), App.Rotation())
sketch11.addGeometry(Part.ArcOfCircle(Part.Circle(Vector(-402, -366.4, 0), Vector(0, 0, 1), 7.5), math.radians(-158), math.radians(0)), False)
sketch11.addGeometry(Part.ArcOfCircle(Part.Circle(Vector(-402, -366.4, 0), Vector(0, 0, 1), 7.5), math.radians(0), math.radians(22)), False)
sketch11.addGeometry(Part.LineSegment(Vector(-395.1, -363.7, 0), Vector(-398.3, -355.5, 0)), False)
sketch11.addGeometry(Part.LineSegment(Vector(-398.3, -355.5, 0), Vector(-435.1, -263.7, 0)), False)
sketch11.addGeometry(Part.ArcOfCircle(Part.Circle(Vector(-442, -266.4, 0), Vector(0, 0, 1), 7.5), math.radians(22), math.radians(158)), False)
sketch11.addGeometry(Part.ArcOfCircle(Part.Circle(Vector(-442, -266.4, 0), Vector(0, 0, 1), 7.5), math.radians(158), math.radians(202)), False)
sketch11.addGeometry(Part.LineSegment(Vector(-449, -269.2, 0), Vector(-442, -286.6, 0)), False)
sketch11.addGeometry(Part.LineSegment(Vector(-442, -286.6, 0), Vector(-409, -369.2, 0)), False)
sketch11.addConstraint(Sketcher.Constraint("Tangent", 0, 2, 1, 1))
sketch11.addConstraint(Sketcher.Constraint("Tangent", 1, 2, 2, 1))
sketch11.addConstraint(Sketcher.Constraint("Coincident", 2, 2, 3, 1))
sketch11.addConstraint(Sketcher.Constraint("Tangent", 3, 2, 4, 1))
sketch11.addConstraint(Sketcher.Constraint("Tangent", 4, 2, 5, 1))
sketch11.addConstraint(Sketcher.Constraint("Tangent", 5, 2, 6, 1))
sketch11.addConstraint(Sketcher.Constraint("Coincident", 6, 2, 7, 1))
sketch11.addConstraint(Sketcher.Constraint("Tangent", 7, 2, 0, 1))
sketch11.addConstraint(Sketcher.Constraint("Equal", 0, 1))
sketch11.addConstraint(Sketcher.Constraint("Equal", 1, 4))
sketch11.addConstraint(Sketcher.Constraint("Equal", 4, 5))
sketch11.addConstraint(Sketcher.Constraint("Parallel", 2, 3))
sketch11.addConstraint(Sketcher.Constraint("Parallel", 3, 6))
sketch11.addConstraint(Sketcher.Constraint("Horizontal", 1, 3, 0, 2))
sketch11.addConstraint(Sketcher.Constraint("Horizontal", 3, 2, 4, 2))
sketch11.addConstraint(Sketcher.Constraint("Vertical", 5, 3, 6, 2))
sketch11.addConstraint(Sketcher.Constraint("Radius", 0, 7.5))
sketch11.addConstraint(Sketcher.Constraint("DistanceX", 4, 3, 0, 3, 40.0))
sketch11.addConstraint(Sketcher.Constraint("DistanceY", 0, 3, 4, 3, 100.0))
sketch11.addConstraint(Sketcher.Constraint("DistanceY", 1, 2, 2, 2, 8.1622))
sketch11.addConstraint(Sketcher.Constraint("DistanceX", 0, 3, -1, 1, 402.031858))
sketch11.addConstraint(Sketcher.Constraint("DistanceY", 0, 3, -1, 1, 366.437796))
pad11 = body10.newObject("PartDesign::Pad", "Pad010")
pad11.Profile = sketch11
pad11.Length = 2
pad11.Reversed = True

doc.recompute()
